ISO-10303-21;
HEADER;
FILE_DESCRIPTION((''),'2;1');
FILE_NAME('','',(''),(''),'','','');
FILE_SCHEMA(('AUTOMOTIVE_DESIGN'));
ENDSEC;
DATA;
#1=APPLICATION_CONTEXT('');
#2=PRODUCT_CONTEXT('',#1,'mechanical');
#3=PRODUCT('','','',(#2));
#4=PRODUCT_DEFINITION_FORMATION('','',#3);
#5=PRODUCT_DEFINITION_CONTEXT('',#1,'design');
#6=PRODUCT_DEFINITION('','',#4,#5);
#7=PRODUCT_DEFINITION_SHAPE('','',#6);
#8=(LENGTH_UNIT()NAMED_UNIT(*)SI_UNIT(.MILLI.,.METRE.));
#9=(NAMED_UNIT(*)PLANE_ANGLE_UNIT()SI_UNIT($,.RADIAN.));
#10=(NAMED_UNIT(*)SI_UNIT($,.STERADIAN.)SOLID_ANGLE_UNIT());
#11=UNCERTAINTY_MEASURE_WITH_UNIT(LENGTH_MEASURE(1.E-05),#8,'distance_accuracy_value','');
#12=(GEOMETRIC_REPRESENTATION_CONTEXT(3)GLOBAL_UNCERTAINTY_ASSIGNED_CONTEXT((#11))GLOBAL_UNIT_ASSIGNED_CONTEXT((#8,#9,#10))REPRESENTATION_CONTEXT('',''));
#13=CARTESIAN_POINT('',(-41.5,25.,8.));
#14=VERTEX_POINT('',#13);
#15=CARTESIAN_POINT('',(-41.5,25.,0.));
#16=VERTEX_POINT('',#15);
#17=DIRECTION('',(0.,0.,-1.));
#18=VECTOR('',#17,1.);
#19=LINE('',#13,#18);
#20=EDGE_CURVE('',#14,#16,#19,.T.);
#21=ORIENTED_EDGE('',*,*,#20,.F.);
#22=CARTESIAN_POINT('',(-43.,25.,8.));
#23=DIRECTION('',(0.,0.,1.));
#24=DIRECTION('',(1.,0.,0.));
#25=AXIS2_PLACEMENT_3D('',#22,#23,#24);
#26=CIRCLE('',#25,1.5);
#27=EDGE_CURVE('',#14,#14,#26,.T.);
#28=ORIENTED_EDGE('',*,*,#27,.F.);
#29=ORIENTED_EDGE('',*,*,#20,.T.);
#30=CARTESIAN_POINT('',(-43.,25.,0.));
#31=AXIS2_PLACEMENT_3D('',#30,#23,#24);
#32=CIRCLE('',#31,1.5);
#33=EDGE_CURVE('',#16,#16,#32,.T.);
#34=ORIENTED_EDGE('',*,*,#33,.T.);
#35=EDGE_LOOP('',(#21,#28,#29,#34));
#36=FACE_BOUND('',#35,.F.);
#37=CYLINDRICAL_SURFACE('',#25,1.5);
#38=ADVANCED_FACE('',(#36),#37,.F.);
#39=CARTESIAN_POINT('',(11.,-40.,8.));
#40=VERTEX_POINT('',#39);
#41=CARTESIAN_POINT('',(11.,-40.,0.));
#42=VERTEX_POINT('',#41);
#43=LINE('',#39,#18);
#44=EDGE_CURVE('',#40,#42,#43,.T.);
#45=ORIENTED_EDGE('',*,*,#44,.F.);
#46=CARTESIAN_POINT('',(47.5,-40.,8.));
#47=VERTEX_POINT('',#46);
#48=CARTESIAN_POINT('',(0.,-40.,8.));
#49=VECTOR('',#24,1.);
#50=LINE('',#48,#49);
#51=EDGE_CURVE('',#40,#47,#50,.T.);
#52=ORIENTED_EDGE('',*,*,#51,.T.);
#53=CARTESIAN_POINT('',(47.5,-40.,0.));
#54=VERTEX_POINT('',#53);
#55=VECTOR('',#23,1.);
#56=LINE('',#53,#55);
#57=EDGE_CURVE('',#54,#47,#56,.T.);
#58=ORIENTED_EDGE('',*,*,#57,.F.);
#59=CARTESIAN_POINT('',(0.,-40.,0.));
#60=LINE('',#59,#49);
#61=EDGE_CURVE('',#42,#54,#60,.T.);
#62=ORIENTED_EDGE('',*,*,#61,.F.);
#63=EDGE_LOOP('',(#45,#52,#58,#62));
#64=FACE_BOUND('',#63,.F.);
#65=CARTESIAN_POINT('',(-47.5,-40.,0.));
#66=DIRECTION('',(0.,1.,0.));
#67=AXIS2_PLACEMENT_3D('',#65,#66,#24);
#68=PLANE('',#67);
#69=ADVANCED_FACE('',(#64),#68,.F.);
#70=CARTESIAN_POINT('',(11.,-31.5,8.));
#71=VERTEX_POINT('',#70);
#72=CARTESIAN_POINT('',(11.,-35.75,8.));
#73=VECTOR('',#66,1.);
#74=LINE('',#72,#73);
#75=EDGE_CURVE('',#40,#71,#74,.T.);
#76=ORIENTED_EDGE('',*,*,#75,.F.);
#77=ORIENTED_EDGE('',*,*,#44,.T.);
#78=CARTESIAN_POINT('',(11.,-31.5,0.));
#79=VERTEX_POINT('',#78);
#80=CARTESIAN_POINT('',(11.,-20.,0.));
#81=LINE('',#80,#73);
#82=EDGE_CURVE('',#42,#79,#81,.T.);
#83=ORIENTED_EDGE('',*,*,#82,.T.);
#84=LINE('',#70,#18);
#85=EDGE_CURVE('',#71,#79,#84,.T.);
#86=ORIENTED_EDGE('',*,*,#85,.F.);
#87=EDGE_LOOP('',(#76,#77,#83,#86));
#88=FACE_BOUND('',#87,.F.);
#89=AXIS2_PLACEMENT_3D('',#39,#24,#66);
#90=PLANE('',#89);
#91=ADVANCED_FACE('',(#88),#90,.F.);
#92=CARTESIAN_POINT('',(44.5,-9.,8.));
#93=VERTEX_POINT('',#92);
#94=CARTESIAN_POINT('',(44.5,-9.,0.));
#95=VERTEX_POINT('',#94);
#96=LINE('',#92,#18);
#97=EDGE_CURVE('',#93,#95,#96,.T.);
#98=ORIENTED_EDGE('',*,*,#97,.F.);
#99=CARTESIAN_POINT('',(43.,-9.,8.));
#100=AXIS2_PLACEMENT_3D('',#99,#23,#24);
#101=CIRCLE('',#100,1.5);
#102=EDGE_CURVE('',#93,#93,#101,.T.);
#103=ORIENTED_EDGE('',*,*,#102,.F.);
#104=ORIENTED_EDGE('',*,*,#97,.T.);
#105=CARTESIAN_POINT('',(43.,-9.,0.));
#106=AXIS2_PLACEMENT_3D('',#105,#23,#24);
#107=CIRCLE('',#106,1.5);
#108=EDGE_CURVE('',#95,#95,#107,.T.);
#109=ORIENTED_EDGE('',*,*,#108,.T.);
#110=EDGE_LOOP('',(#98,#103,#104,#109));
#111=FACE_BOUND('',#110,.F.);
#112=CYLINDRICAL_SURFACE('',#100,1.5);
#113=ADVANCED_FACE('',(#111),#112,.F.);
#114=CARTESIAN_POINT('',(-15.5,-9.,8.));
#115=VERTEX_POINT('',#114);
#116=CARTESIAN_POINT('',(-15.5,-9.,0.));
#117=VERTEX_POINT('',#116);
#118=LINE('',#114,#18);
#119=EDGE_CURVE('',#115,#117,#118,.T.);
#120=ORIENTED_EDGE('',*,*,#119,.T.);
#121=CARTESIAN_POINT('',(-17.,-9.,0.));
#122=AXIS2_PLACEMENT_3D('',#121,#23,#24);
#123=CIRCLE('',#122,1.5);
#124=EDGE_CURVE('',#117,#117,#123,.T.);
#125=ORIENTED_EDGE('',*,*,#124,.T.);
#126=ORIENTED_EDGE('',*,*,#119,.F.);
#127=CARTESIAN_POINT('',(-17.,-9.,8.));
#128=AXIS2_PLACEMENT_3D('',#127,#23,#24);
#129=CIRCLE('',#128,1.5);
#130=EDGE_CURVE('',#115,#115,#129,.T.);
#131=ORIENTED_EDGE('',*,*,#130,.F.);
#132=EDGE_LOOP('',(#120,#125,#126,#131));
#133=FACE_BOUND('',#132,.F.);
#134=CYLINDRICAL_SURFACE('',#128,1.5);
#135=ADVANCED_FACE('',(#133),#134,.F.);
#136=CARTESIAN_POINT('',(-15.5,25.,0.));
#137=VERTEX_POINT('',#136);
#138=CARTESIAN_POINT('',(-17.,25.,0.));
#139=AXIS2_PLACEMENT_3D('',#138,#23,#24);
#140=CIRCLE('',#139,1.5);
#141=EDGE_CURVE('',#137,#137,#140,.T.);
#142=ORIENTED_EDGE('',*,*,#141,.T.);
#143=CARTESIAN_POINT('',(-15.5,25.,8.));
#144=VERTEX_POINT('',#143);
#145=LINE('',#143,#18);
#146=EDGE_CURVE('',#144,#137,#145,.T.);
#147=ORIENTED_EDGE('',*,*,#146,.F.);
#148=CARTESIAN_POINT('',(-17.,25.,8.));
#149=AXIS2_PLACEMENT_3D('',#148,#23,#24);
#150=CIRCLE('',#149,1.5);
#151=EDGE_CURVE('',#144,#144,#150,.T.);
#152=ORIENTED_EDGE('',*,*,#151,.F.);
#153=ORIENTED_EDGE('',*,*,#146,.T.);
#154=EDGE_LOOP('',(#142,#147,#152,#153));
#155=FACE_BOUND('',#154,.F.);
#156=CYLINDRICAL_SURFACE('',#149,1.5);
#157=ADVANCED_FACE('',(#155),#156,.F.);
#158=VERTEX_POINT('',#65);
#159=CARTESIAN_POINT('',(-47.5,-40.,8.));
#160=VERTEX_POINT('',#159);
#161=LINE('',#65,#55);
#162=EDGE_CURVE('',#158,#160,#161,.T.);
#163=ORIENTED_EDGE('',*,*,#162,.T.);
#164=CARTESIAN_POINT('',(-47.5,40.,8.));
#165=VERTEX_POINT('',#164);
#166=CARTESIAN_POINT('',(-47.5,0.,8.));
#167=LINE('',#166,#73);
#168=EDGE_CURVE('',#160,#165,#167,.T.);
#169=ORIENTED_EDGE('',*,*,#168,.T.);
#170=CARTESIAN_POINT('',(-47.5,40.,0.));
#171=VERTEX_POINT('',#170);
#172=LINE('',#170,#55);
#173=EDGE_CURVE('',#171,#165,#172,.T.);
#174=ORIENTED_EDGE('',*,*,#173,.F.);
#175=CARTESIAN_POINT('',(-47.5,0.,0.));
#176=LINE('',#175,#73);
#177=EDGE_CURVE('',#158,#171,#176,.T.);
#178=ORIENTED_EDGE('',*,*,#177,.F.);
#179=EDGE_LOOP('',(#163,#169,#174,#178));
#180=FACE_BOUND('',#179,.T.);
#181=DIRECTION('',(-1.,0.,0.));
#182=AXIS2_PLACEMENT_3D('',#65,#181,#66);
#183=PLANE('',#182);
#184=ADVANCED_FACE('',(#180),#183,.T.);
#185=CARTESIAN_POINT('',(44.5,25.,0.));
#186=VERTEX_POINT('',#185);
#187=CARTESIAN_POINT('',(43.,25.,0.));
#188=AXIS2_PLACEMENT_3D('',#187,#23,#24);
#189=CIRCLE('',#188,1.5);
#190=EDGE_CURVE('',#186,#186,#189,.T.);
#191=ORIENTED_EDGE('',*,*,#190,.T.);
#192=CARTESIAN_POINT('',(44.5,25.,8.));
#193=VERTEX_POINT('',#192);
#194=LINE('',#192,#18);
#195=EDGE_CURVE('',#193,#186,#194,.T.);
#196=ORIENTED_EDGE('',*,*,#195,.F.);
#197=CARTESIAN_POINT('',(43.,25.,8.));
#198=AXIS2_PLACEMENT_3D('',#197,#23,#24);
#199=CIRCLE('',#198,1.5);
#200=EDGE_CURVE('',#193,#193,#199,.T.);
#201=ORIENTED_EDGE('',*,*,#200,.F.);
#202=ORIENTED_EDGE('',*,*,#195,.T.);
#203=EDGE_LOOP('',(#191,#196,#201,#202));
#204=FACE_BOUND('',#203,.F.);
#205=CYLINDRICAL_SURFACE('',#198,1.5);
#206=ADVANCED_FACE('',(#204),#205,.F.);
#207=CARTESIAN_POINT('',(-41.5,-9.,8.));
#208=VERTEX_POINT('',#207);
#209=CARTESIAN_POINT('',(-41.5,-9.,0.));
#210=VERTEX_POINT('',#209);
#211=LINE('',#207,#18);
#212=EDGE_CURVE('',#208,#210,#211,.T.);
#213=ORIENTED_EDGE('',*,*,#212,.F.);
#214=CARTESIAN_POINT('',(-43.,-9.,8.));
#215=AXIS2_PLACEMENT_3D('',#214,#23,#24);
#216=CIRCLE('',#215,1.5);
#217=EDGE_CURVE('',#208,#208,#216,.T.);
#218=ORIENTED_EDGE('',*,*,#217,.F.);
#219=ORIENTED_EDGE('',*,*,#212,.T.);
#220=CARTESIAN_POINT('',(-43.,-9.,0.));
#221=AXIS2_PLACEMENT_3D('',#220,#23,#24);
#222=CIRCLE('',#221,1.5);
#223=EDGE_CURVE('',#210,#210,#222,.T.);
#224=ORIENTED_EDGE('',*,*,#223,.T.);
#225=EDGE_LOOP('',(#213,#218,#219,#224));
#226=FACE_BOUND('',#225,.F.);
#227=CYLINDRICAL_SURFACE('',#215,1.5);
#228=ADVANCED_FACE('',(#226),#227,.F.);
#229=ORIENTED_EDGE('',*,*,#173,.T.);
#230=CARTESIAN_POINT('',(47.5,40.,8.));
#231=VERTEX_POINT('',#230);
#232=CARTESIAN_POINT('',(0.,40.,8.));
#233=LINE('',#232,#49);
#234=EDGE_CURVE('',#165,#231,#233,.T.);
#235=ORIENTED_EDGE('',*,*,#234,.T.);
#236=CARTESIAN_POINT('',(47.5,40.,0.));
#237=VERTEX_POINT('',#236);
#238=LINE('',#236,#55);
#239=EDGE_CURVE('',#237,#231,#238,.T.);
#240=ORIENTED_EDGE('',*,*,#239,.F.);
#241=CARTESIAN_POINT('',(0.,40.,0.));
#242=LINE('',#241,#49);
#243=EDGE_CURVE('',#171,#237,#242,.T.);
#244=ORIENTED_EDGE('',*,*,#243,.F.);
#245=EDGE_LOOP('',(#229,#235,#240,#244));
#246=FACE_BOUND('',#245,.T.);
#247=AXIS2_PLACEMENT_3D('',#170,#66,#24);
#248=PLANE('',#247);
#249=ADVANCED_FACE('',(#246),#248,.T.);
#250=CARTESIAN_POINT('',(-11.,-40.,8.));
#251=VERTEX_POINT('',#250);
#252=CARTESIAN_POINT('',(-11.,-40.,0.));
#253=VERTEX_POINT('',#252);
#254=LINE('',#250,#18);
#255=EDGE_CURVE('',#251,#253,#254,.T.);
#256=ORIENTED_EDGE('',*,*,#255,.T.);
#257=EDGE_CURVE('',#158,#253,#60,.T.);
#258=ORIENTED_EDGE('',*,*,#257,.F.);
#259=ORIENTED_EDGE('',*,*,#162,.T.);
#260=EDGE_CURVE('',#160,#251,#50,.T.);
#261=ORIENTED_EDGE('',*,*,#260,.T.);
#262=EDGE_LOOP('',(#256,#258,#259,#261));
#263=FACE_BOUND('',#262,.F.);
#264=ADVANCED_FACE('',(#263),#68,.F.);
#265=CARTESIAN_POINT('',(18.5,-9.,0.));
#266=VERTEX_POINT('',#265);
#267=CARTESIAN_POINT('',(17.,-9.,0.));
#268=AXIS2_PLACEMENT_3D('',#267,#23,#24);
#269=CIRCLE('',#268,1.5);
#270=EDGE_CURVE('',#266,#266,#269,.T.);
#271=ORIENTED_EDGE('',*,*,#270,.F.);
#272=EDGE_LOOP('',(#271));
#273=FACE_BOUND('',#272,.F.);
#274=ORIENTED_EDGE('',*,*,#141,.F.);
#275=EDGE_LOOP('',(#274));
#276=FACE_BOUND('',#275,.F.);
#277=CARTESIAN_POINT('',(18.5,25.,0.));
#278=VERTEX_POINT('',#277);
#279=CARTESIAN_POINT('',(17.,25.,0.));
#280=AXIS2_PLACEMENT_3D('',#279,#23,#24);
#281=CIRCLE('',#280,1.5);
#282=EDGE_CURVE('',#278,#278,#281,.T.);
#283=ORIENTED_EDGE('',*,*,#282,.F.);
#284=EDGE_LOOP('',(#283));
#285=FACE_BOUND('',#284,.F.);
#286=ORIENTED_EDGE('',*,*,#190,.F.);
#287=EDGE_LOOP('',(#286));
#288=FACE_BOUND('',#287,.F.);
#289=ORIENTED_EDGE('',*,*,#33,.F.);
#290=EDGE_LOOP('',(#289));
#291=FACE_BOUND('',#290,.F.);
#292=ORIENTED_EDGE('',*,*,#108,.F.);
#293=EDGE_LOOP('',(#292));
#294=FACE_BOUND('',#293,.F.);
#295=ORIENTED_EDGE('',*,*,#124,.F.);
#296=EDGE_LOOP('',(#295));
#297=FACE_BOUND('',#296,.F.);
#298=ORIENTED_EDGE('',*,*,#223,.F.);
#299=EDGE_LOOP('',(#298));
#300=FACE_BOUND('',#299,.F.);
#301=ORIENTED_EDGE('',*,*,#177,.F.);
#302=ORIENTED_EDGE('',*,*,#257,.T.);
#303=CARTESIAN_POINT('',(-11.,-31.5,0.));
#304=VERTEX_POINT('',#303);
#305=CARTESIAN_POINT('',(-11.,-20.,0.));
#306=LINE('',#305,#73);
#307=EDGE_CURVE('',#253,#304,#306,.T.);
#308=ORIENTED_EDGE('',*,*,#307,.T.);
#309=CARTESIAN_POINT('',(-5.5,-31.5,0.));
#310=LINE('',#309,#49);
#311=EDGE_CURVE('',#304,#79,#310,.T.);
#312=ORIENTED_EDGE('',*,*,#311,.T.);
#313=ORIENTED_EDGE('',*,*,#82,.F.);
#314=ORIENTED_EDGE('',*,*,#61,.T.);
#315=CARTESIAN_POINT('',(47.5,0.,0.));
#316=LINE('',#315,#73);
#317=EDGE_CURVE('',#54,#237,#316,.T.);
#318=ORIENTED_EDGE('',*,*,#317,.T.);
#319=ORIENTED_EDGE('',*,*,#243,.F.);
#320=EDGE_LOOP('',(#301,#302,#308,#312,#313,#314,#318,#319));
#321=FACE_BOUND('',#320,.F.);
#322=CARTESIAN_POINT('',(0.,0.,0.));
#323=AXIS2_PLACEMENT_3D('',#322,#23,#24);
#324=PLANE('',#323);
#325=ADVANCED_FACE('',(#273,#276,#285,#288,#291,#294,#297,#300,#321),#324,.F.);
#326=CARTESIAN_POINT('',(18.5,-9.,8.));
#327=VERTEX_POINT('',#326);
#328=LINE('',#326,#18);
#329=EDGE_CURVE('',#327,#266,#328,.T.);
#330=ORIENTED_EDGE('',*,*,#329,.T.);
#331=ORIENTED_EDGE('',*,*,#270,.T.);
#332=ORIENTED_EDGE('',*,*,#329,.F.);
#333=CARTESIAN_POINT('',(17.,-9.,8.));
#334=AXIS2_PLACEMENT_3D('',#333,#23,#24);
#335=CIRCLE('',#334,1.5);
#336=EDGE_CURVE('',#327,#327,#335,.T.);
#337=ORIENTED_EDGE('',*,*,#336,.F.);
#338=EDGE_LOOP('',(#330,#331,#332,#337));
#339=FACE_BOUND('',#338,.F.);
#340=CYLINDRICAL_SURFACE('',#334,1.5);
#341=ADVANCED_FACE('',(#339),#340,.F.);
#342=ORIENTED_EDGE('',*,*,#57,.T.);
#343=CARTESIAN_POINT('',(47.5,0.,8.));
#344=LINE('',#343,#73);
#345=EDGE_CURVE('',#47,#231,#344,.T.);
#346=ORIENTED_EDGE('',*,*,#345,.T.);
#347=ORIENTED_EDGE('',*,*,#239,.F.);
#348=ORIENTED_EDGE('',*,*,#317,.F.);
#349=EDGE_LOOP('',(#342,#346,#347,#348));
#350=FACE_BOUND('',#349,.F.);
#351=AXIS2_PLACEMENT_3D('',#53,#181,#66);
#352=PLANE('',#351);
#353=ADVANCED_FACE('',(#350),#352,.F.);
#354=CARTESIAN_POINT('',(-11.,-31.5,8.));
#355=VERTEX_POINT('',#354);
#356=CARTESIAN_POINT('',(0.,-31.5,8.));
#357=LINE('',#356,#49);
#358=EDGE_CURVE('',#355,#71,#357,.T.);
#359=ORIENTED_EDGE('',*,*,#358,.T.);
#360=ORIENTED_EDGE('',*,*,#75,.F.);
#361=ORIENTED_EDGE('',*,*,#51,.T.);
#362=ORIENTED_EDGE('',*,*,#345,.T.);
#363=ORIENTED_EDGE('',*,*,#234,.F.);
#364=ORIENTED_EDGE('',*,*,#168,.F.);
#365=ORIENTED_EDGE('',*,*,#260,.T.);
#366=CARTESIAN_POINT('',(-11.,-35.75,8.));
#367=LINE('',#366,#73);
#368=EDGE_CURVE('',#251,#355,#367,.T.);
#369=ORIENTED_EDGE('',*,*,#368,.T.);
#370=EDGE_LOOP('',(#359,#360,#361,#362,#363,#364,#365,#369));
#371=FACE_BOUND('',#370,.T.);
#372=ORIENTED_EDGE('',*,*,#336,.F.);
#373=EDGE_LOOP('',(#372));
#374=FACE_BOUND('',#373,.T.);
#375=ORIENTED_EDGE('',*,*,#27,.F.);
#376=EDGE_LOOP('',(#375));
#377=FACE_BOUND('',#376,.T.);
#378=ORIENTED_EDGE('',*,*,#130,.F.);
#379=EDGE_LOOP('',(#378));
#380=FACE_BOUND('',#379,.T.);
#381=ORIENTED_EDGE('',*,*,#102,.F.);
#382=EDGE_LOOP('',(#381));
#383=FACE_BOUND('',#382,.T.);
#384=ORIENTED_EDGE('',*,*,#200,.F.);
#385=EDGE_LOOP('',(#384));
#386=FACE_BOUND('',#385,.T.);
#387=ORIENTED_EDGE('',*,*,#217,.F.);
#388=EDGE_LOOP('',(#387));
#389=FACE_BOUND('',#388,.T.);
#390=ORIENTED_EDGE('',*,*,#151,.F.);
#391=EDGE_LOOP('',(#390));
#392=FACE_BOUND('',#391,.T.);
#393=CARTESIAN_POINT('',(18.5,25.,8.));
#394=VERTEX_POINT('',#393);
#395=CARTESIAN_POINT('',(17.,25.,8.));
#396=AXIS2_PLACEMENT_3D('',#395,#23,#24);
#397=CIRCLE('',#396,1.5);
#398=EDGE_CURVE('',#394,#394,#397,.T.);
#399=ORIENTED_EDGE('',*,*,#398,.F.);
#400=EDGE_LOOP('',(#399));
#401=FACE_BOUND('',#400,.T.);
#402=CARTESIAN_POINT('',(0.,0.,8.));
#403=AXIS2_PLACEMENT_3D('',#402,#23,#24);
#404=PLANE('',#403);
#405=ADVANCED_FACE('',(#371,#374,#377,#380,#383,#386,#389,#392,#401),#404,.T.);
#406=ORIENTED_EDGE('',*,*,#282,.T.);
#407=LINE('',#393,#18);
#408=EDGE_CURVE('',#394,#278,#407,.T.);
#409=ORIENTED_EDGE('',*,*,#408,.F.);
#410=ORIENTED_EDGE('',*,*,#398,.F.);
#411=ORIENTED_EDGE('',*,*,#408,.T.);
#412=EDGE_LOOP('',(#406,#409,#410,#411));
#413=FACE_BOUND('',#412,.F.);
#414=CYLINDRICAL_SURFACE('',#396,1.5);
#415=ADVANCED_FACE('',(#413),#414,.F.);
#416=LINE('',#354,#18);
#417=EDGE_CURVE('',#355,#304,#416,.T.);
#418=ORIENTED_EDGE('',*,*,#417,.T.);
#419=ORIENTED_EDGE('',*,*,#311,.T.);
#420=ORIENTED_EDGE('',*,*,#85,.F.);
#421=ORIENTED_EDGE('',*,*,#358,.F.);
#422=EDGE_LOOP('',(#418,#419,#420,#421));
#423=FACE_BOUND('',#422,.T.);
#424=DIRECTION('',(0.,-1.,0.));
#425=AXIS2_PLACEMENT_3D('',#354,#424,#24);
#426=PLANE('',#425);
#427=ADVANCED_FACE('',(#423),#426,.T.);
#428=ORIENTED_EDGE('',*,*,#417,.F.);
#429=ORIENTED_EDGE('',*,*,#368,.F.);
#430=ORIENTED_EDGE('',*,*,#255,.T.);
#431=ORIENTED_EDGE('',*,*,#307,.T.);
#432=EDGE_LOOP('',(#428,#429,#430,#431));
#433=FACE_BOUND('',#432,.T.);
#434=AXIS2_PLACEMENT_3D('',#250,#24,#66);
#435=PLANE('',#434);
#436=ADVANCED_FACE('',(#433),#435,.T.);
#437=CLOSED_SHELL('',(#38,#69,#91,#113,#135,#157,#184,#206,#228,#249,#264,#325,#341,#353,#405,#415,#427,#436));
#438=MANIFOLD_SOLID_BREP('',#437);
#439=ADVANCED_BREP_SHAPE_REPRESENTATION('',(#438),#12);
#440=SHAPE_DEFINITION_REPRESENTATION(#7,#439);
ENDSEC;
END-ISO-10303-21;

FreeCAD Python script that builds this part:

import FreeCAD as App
import Part
import Sketcher

V = App.Vector

doc = App.newDocument("Part")
body = doc.addObject("PartDesign::Body", "Body")

sketch1 = doc.addObject("Sketcher::SketchObject", "Sketch")
body.addObject(sketch1)
sketch1.AttachmentSupport = (doc.XY_Plane, [""])
sketch1.MapMode = "FlatFace"
sketch1.addGeometry([
    Part.LineSegment(V(-48, 40, 0), V(-48, -40, 0)),
    Part.LineSegment(V(-48, -40, 0), V(48, -40, 0)),
    Part.LineSegment(V(48, -40, 0), V(48, 40, 0)),
    Part.LineSegment(V(48, 40, 0), V(-48, 40, 0)),
], False)
sketch1.addConstraint([
    Sketcher.Constraint("Coincident", 0, 2, 1, 1),
    Sketcher.Constraint("Coincident", 1, 2, 2, 1),
    Sketcher.Constraint("Coincident", 2, 2, 3, 1),
    Sketcher.Constraint("Coincident", 3, 2, 0, 1),
    Sketcher.Constraint("Vertical", 0),
    Sketcher.Constraint("Horizontal", 1),
    Sketcher.Constraint("Vertical", 2),
    Sketcher.Constraint("Horizontal", 3),
    Sketcher.Constraint("Symmetric", 0, 2, 2, 2, -1, 1),
    Sketcher.Constraint("DistanceX", 1, 1, 1, 2, 95.0),
    Sketcher.Constraint("DistanceY", 0, 2, 0, 1, 80.0),
])
pad1 = doc.addObject("PartDesign::Pad", "Pad")
body.addObject(pad1)
pad1.Profile = sketch1
pad1.Length = 8

sketch2 = doc.addObject("Sketcher::SketchObject", "Sketch001")
body.addObject(sketch2)
sketch2.AttachmentSupport = (doc.XY_Plane, [""])
sketch2.MapMode = "FlatFace"
sketch2.AttachmentOffset = App.Placement(V(0, 0, 8), App.Rotation())
sketch2.addGeometry([
    Part.Circle(V(-43, 25, 0), V(0, 0, 1), 1.5),
    Part.Circle(V(-17, 25, 0), V(0, 0, 1), 1.5),
    Part.Circle(V(-17, -9, 0), V(0, 0, 1), 1.5),
    Part.Circle(V(-43, -9, 0), V(0, 0, 1), 1.5),
    Part.Circle(V(17, 25, 0), V(0, 0, 1), 1.5),
    Part.Circle(V(43, 25, 0), V(0, 0, 1), 1.5),
    Part.Circle(V(43, -9, 0), V(0, 0, 1), 1.5),
    Part.Circle(V(17, -9, 0), V(0, 0, 1), 1.5),
    Part.LineSegment(V(-11, -31.5, 0), V(-11, -40, 0)),
    Part.LineSegment(V(-11, -40, 0), V(11, -40, 0)),
    Part.LineSegment(V(11, -40, 0), V(11, -31.5, 0)),
    Part.LineSegment(V(11, -31.5, 0), V(-11, -31.5, 0)),
], False)
sketch2.addConstraint([
    Sketcher.Constraint("Coincident", 8, 2, 9, 1),
    Sketcher.Constraint("Coincident", 9, 2, 10, 1),
    Sketcher.Constraint("Coincident", 10, 2, 11, 1),
    Sketcher.Constraint("Coincident", 11, 2, 8, 1),
    Sketcher.Constraint("Vertical", 8),
    Sketcher.Constraint("Horizontal", 9),
    Sketcher.Constraint("Vertical", 10),
    Sketcher.Constraint("Horizontal", 11),
    Sketcher.Constraint("Equal", 0, 1),
    Sketcher.Constraint("Equal", 1, 2),
    Sketcher.Constraint("Equal", 2, 3),
    Sketcher.Constraint("Equal", 3, 4),
    Sketcher.Constraint("Equal", 4, 5),
    Sketcher.Constraint("Equal", 5, 6),
    Sketcher.Constraint("Equal", 6, 7),
    Sketcher.Constraint("Symmetric", 1, 3, 4, 3, -2),
    Sketcher.Constraint("Symmetric", 0, 3, 5, 3, -2),
    Sketcher.Constraint("Symmetric", 3, 3, 6, 3, -2),
    Sketcher.Constraint("Symmetric", 2, 3, 7, 3, -2),
    Sketcher.Constraint("Horizontal", 0, 3, 1, 3),
    Sketcher.Constraint("Horizontal", 2, 3, 3, 3),
    Sketcher.Constraint("Vertical", 1, 3, 2, 3),
    Sketcher.Constraint("Vertical", 0, 3, 3, 3),
    Sketcher.Constraint("Diameter", 0, 3.0),
    Sketcher.Constraint("DistanceX", 9, 1, 9, 2, 22.0),
    Sketcher.Constraint("DistanceY", 8, 2, 8, 1, 8.5),
    Sketcher.Constraint("DistanceX", 0, 3, -1, 1, 43.0),
    Sketcher.Constraint("DistanceY", -1, 1, 0, 3, 25.0),
    Sketcher.Constraint("DistanceX", 1, 3, -1, 1, 17.0),
    Sketcher.Constraint("DistanceY", 2, 3, -1, 1, 9.0),
    Sketcher.Constraint("DistanceX", 8, 2, -1, 1, 11.0),
    Sketcher.Constraint("DistanceY", 8, 2, -1, 1, 40.0),
])
pocket1 = doc.addObject("PartDesign::Pocket", "Pocket")
body.addObject(pocket1)
pocket1.Profile = sketch2
pocket1.Type = "ThroughAll"

doc.recompute()
